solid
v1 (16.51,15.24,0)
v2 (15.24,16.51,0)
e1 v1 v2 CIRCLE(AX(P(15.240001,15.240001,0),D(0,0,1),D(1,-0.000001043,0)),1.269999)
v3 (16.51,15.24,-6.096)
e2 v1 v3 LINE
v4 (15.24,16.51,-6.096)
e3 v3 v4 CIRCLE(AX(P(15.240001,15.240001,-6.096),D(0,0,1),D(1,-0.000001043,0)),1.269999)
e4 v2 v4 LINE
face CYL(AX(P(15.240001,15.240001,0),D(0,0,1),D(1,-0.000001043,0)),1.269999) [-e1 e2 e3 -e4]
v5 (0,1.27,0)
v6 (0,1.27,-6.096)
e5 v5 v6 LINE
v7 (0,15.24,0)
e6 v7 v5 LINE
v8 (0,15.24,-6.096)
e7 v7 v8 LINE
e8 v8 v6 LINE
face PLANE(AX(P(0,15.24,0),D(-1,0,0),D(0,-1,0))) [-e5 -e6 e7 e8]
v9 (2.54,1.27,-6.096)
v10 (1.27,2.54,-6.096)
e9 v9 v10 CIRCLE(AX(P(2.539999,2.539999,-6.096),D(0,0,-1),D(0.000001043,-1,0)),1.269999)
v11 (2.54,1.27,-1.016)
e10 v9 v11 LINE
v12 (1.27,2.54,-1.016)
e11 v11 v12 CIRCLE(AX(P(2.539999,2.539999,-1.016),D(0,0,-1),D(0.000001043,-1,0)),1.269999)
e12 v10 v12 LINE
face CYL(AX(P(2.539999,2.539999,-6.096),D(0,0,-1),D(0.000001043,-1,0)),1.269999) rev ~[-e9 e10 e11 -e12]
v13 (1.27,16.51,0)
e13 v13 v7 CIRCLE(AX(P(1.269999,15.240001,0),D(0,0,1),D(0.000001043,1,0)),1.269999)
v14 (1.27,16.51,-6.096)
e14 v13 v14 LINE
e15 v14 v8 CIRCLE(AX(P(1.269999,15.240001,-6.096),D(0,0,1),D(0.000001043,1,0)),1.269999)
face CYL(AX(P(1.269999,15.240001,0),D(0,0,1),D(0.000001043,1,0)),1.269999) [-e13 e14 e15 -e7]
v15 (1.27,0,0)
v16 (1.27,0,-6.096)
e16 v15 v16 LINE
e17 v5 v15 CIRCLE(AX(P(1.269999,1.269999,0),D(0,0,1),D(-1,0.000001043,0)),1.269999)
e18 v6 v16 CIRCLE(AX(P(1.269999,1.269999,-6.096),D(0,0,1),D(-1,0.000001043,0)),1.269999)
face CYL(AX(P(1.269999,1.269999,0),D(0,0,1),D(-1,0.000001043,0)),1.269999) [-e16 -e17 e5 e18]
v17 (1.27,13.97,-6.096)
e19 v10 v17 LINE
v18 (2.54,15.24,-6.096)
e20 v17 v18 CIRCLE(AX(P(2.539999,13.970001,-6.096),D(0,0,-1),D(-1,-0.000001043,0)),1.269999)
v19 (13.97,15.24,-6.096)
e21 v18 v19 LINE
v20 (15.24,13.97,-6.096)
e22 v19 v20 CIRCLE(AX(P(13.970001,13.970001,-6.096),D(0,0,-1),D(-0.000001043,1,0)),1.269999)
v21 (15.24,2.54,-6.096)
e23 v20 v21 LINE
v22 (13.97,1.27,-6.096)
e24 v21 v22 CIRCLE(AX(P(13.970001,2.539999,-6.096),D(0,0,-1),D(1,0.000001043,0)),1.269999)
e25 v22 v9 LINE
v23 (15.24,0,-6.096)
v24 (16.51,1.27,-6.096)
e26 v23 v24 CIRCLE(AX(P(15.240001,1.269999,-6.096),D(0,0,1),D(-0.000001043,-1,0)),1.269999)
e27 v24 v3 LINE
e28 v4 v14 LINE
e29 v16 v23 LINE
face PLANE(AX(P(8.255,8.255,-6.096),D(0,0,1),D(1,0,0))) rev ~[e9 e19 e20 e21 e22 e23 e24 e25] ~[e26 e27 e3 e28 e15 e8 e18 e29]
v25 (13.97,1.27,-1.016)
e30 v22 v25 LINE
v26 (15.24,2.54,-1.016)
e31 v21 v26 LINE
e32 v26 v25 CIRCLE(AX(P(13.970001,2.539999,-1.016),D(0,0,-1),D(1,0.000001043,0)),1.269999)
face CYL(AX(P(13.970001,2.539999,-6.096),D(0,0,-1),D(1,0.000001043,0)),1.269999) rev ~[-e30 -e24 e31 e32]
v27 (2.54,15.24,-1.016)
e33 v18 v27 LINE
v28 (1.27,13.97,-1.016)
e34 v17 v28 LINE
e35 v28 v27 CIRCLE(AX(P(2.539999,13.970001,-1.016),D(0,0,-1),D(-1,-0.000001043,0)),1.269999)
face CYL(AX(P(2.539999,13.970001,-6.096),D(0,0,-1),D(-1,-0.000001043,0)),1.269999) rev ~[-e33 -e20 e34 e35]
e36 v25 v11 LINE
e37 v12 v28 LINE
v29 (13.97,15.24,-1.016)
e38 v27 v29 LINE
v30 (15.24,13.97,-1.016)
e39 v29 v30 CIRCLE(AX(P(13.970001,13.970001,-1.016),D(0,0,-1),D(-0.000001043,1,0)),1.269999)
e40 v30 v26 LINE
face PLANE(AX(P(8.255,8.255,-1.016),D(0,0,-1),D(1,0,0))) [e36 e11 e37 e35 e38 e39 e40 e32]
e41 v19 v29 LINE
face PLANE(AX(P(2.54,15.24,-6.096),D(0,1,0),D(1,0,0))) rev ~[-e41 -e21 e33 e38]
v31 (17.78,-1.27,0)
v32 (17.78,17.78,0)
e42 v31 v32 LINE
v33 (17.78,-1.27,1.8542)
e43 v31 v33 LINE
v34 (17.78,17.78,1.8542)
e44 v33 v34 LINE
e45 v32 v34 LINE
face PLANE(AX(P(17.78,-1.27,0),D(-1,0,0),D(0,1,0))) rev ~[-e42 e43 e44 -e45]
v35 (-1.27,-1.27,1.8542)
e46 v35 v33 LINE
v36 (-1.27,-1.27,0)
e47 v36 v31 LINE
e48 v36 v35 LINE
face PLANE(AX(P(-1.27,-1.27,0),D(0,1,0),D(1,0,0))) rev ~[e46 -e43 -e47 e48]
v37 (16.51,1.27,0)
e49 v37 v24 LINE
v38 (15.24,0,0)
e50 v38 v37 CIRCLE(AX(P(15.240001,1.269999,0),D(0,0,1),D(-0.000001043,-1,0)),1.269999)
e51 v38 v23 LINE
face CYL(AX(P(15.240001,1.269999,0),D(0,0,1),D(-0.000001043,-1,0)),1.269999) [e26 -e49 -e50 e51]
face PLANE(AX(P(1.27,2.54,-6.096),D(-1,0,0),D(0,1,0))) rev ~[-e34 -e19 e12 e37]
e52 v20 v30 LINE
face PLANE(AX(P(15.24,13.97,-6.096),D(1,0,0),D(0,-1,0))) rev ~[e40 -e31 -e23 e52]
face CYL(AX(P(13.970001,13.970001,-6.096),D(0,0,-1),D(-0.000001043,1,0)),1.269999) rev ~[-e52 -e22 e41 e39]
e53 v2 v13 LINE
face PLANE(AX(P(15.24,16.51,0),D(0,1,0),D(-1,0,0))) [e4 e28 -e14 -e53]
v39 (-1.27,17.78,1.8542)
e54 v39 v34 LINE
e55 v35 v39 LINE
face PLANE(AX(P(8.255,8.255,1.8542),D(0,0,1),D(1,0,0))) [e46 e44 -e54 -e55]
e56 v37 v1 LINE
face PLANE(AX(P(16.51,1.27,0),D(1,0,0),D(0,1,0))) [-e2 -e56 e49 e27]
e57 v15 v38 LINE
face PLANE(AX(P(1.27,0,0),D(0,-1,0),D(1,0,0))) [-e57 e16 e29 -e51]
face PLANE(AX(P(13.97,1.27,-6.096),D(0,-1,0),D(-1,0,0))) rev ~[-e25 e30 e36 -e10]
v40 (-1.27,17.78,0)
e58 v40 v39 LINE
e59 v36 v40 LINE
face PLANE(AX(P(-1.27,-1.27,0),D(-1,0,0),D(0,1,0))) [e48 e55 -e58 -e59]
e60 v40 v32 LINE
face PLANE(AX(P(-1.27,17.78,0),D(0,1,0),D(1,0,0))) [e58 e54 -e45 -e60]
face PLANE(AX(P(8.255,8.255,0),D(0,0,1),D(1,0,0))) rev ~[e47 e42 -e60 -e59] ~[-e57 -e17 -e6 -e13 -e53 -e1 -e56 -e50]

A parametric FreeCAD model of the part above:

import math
import FreeCAD as App
import Part
import Sketcher

V = App.Vector
Q = App.Units.Quantity

doc = App.newDocument("Part")
body = doc.addObject("PartDesign::Body", "Body")

sketch1 = body.newObject("Sketcher::SketchObject", "Sketch")
sketch1.AttachmentSupport = (doc.getObject("XY_Plane"), [""])
sketch1.MapMode = "FlatFace"
sketch1.addGeometry(Part.ArcOfCircle(Part.Circle(V(1.3, 1.3, 0), V(0, 0, 1), 1.3), math.radians(180), math.radians(270)), False)
sketch1.addGeometry(Part.LineSegment(V(1.3, 0, 0), V(15.2, 0, 0)), False)
sketch1.addGeometry(Part.ArcOfCircle(Part.Circle(V(15.2, 1.3, 0), V(0, 0, 1), 1.3), math.radians(-90), math.radians(0)), False)
sketch1.addGeometry(Part.LineSegment(V(16.5, 1.3, 0), V(16.5, 15.2, 0)), False)
sketch1.addGeometry(Part.ArcOfCircle(Part.Circle(V(15.2, 15.2, 0), V(0, 0, 1), 1.3), math.radians(0), math.radians(90)), False)
sketch1.addGeometry(Part.LineSegment(V(15.2, 16.5, 0), V(1.3, 16.5, 0)), False)
sketch1.addGeometry(Part.ArcOfCircle(Part.Circle(V(1.3, 15.2, 0), V(0, 0, 1), 1.3), math.radians(90), math.radians(180)), False)
sketch1.addGeometry(Part.LineSegment(V(0, 15.2, 0), V(0, 1.3, 0)), False)
sketch1.addConstraint(Sketcher.Constraint("Tangent", 0, 2, 1, 1))
sketch1.addConstraint(Sketcher.Constraint("Tangent", 1, 2, 2, 1))
sketch1.addConstraint(Sketcher.Constraint("Tangent", 2, 2, 3, 1))
sketch1.addConstraint(Sketcher.Constraint("Tangent", 3, 2, 4, 1))
sketch1.addConstraint(Sketcher.Constraint("Tangent", 4, 2, 5, 1))
sketch1.addConstraint(Sketcher.Constraint("Tangent", 5, 2, 6, 1))
sketch1.addConstraint(Sketcher.Constraint("Tangent", 6, 2, 7, 1))
sketch1.addConstraint(Sketcher.Constraint("Tangent", 7, 2, 0, 1))
sketch1.addConstraint(Sketcher.Constraint("Horizontal", 1))
sketch1.addConstraint(Sketcher.Constraint("Vertical", 3))
sketch1.addConstraint(Sketcher.Constraint("Horizontal", 5))
sketch1.addConstraint(Sketcher.Constraint("Vertical", 7))
sketch1.addConstraint(Sketcher.Constraint("Equal", 0, 2))
sketch1.addConstraint(Sketcher.Constraint("Equal", 2, 4))
sketch1.addConstraint(Sketcher.Constraint("Equal", 4, 6))
sketch1.addConstraint(Sketcher.Constraint("PointOnObject", 0, 2, -1))
sketch1.addConstraint(Sketcher.Constraint("PointOnObject", 6, 2, -2))
sketch1.addConstraint(Sketcher.Constraint("Equal", 5, 3))
sketch1.addConstraint(Sketcher.Constraint("Radius", 0, Q("0.0499999 in")))
sketch1.addConstraint(Sketcher.Constraint("DistanceX", 1, 1, 1, 2, Q("0.55 in")))
pad1 = body.newObject("PartDesign::Pad", "Pad")
pad1.Profile = sketch1
pad1.Length = Q("0.24 in")
pad1.Reversed = True

sketch2 = body.newObject("Sketcher::SketchObject", "Sketch001")
sketch2.AttachmentSupport = (doc.getObject("XY_Plane"), [""])
sketch2.MapMode = "FlatFace"
sketch2.AttachmentOffset = App.Placement(V(0, 0, -0.24 * 25.4), App.Rotation())
sketch2.addGeometry(Part.LineSegment(V(14, 1.3, 0), V(2.5, 1.3, 0)), False)
sketch2.addGeometry(Part.ArcOfCircle(Part.Circle(V(2.5, 2.5, 0), V(0, 0, 1), 1.3), math.radians(180), math.radians(270)), False)
sketch2.addGeometry(Part.LineSegment(V(1.3, 2.5, 0), V(1.3, 14, 0)), False)
sketch2.addGeometry(Part.ArcOfCircle(Part.Circle(V(2.5, 14, 0), V(0, 0, 1), 1.3), math.radians(90), math.radians(180)), False)
sketch2.addGeometry(Part.LineSegment(V(2.5, 15.2, 0), V(14, 15.2, 0)), False)
sketch2.addGeometry(Part.ArcOfCircle(Part.Circle(V(14, 14, 0), V(0, 0, 1), 1.3), math.radians(0), math.radians(90)), False)
sketch2.addGeometry(Part.LineSegment(V(15.2, 14, 0), V(15.2, 2.5, 0)), False)
sketch2.addGeometry(Part.ArcOfCircle(Part.Circle(V(14, 2.5, 0), V(0, 0, 1), 1.3), math.radians(-90), math.radians(0)), False)
sketch2.addConstraint(Sketcher.Constraint("Tangent", 0, 2, 1, 2))
sketch2.addConstraint(Sketcher.Constraint("Tangent", 1, 1, 2, 1))
sketch2.addConstraint(Sketcher.Constraint("Tangent", 2, 2, 3, 2))
sketch2.addConstraint(Sketcher.Constraint("Tangent", 3, 1, 4, 1))
sketch2.addConstraint(Sketcher.Constraint("Tangent", 4, 2, 5, 2))
sketch2.addConstraint(Sketcher.Constraint("Tangent", 5, 1, 6, 1))
sketch2.addConstraint(Sketcher.Constraint("Tangent", 6, 2, 7, 2))
sketch2.addConstraint(Sketcher.Constraint("Tangent", 7, 1, 0, 1))
sketch2.addConstraint(Sketcher.Constraint("Horizontal", 0))
sketch2.addConstraint(Sketcher.Constraint("Vertical", 2))
sketch2.addConstraint(Sketcher.Constraint("Horizontal", 4))
sketch2.addConstraint(Sketcher.Constraint("Vertical", 6))
sketch2.addConstraint(Sketcher.Constraint("Equal", 1, 3))
sketch2.addConstraint(Sketcher.Constraint("Equal", 3, 5))
sketch2.addConstraint(Sketcher.Constraint("Equal", 5, 7))
sketch2.addConstraint(Sketcher.Constraint("Equal", 4, 2))
sketch2.addConstraint(Sketcher.Constraint("Radius", 1, Q("0.0499999 in")))
sketch2.addConstraint(Sketcher.Constraint("DistanceX", 0, 2, 0, 1, Q("0.45 in")))
sketch2.addConstraint(Sketcher.Constraint("DistanceX", -1, 1, 1, 3, Q("0.0999999 in")))
sketch2.addConstraint(Sketcher.Constraint("DistanceY", -1, 1, 1, 3, Q("0.0999999 in")))
pocket1 = body.newObject("PartDesign::Pocket", "Pocket")
pocket1.Profile = sketch2
pocket1.Length = Q("0.2 in")
pocket1.Reversed = True

sketch3 = body.newObject("Sketcher::SketchObject", "Sketch002")
sketch3.AttachmentSupport = (doc.getObject("XY_Plane"), [""])
sketch3.MapMode = "FlatFace"
sketch3.addGeometry(Part.LineSegment(V(-1, 18, 0), V(-1, -1, 0)), False)
sketch3.addGeometry(Part.LineSegment(V(-1, -1, 0), V(18, -1, 0)), False)
sketch3.addGeometry(Part.LineSegment(V(18, -1, 0), V(18, 18, 0)), False)
sketch3.addGeometry(Part.LineSegment(V(18, 18, 0), V(-1, 18, 0)), False)
sketch3.addConstraint(Sketcher.Constraint("Coincident", 0, 2, 1, 1))
sketch3.addConstraint(Sketcher.Constraint("Coincident", 1, 2, 2, 1))
sketch3.addConstraint(Sketcher.Constraint("Coincident", 2, 2, 3, 1))
sketch3.addConstraint(Sketcher.Constraint("Coincident", 3, 2, 0, 1))
sketch3.addConstraint(Sketcher.Constraint("Vertical", 0))
sketch3.addConstraint(Sketcher.Constraint("Horizontal", 1))
sketch3.addConstraint(Sketcher.Constraint("Vertical", 2))
sketch3.addConstraint(Sketcher.Constraint("Horizontal", 3))
sketch3.addConstraint(Sketcher.Constraint("Equal", 3, 0))
sketch3.addConstraint(Sketcher.Constraint("DistanceX", 1, 1, 1, 2, Q("0.75 in")))
sketch3.addConstraint(Sketcher.Constraint("DistanceX", -1, 1, 1, 2, Q("0.7 in")))
sketch3.addConstraint(Sketcher.Constraint("DistanceY", -1, 1, 2, 2, Q("0.7 in")))
pad2 = body.newObject("PartDesign::Pad", "Pad001")
pad2.Profile = sketch3
pad2.Length = Q("0.073 in")

doc.recompute()
